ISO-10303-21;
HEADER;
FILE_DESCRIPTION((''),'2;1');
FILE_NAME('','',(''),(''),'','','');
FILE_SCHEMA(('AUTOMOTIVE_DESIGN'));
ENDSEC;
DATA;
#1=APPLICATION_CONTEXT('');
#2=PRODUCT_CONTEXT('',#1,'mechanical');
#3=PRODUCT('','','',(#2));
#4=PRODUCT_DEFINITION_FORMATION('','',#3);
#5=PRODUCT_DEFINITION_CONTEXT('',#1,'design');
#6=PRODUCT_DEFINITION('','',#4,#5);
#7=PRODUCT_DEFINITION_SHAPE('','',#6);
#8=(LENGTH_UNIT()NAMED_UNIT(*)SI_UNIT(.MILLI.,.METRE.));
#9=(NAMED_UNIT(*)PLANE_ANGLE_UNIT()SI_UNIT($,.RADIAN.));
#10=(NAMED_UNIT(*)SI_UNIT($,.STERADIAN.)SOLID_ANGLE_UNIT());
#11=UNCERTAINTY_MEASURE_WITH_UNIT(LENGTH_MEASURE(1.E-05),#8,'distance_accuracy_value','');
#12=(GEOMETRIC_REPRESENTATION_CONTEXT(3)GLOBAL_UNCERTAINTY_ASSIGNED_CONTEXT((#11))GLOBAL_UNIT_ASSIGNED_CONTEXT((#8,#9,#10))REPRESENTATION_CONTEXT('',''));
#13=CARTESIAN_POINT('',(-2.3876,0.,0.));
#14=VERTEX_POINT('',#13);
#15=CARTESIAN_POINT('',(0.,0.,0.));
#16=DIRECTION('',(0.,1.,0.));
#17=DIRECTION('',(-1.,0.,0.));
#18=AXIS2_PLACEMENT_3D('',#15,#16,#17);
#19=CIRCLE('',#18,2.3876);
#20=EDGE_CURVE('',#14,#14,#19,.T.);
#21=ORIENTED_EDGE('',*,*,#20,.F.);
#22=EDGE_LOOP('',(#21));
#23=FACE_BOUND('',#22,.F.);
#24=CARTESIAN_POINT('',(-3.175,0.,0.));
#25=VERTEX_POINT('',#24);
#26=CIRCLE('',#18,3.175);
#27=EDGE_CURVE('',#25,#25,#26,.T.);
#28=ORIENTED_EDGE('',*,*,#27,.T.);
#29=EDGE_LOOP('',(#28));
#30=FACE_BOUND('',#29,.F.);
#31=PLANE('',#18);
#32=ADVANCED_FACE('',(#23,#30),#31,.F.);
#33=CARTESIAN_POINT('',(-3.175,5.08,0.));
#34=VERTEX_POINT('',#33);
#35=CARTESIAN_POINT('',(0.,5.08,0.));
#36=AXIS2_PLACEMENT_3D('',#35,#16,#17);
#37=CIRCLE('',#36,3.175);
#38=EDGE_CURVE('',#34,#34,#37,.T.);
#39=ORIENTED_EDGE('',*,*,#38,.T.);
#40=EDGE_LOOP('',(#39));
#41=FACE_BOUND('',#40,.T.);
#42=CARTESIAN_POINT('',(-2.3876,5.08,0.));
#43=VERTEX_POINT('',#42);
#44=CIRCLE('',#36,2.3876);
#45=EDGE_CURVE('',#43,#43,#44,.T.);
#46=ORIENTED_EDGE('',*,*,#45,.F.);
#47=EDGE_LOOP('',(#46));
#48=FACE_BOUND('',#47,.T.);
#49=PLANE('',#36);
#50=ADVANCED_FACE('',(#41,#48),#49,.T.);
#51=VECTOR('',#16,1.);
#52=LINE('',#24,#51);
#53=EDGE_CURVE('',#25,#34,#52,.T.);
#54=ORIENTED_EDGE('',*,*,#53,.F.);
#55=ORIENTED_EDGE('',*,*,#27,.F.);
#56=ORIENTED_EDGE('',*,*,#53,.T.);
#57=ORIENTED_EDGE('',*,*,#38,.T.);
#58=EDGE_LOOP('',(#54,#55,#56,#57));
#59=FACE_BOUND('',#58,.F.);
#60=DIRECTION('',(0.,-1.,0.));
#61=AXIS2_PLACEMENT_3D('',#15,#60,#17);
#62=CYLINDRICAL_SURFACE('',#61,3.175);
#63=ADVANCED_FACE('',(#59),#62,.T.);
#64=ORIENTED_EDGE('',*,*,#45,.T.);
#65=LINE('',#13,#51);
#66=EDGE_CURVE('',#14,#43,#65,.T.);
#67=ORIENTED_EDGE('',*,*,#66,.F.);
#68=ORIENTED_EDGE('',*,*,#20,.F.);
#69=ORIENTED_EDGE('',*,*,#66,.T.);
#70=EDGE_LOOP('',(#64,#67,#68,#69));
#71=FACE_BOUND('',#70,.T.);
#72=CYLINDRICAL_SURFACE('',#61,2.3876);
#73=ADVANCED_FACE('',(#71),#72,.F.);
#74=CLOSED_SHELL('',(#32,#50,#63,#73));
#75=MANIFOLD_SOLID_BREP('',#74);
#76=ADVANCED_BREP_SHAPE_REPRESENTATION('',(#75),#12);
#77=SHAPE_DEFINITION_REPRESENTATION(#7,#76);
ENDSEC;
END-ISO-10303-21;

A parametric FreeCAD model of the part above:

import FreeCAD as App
import Part
import Sketcher
from FreeCAD import Vector
Q = App.Units.Quantity

doc = App.newDocument("Part")
body = doc.addObject("PartDesign::Body", "Body")

# Sketch on XZ plane
sketch1 = body.newObject("Sketcher::SketchObject", "Sketch")
sketch1.AttachmentSupport = (doc.getObject("XZ_Plane"), [""])
sketch1.MapMode = "FlatFace"
sketch1.addGeometry(Part.Circle(Vector(0, 0, 0), Vector(0, 0, 1), 3.2), False)
sketch1.addGeometry(Part.Circle(Vector(0, 0, 0), Vector(0, 0, 1), 2.4), False)
sketch1.addConstraint(Sketcher.Constraint("Coincident", 0, 3, -1, 1))
sketch1.addConstraint(Sketcher.Constraint("Coincident", 1, 3, -1, 1))
sketch1.addConstraint(Sketcher.Constraint("Diameter", 0, Q("0.25 in")))
sketch1.addConstraint(Sketcher.Constraint("Diameter", 1, Q("0.188 in")))
pad1 = body.newObject("PartDesign::Pad", "Pad")
pad1.Profile = sketch1
pad1.Length = Q("0.2 in")
pad1.Reversed = True

doc.recompute()
